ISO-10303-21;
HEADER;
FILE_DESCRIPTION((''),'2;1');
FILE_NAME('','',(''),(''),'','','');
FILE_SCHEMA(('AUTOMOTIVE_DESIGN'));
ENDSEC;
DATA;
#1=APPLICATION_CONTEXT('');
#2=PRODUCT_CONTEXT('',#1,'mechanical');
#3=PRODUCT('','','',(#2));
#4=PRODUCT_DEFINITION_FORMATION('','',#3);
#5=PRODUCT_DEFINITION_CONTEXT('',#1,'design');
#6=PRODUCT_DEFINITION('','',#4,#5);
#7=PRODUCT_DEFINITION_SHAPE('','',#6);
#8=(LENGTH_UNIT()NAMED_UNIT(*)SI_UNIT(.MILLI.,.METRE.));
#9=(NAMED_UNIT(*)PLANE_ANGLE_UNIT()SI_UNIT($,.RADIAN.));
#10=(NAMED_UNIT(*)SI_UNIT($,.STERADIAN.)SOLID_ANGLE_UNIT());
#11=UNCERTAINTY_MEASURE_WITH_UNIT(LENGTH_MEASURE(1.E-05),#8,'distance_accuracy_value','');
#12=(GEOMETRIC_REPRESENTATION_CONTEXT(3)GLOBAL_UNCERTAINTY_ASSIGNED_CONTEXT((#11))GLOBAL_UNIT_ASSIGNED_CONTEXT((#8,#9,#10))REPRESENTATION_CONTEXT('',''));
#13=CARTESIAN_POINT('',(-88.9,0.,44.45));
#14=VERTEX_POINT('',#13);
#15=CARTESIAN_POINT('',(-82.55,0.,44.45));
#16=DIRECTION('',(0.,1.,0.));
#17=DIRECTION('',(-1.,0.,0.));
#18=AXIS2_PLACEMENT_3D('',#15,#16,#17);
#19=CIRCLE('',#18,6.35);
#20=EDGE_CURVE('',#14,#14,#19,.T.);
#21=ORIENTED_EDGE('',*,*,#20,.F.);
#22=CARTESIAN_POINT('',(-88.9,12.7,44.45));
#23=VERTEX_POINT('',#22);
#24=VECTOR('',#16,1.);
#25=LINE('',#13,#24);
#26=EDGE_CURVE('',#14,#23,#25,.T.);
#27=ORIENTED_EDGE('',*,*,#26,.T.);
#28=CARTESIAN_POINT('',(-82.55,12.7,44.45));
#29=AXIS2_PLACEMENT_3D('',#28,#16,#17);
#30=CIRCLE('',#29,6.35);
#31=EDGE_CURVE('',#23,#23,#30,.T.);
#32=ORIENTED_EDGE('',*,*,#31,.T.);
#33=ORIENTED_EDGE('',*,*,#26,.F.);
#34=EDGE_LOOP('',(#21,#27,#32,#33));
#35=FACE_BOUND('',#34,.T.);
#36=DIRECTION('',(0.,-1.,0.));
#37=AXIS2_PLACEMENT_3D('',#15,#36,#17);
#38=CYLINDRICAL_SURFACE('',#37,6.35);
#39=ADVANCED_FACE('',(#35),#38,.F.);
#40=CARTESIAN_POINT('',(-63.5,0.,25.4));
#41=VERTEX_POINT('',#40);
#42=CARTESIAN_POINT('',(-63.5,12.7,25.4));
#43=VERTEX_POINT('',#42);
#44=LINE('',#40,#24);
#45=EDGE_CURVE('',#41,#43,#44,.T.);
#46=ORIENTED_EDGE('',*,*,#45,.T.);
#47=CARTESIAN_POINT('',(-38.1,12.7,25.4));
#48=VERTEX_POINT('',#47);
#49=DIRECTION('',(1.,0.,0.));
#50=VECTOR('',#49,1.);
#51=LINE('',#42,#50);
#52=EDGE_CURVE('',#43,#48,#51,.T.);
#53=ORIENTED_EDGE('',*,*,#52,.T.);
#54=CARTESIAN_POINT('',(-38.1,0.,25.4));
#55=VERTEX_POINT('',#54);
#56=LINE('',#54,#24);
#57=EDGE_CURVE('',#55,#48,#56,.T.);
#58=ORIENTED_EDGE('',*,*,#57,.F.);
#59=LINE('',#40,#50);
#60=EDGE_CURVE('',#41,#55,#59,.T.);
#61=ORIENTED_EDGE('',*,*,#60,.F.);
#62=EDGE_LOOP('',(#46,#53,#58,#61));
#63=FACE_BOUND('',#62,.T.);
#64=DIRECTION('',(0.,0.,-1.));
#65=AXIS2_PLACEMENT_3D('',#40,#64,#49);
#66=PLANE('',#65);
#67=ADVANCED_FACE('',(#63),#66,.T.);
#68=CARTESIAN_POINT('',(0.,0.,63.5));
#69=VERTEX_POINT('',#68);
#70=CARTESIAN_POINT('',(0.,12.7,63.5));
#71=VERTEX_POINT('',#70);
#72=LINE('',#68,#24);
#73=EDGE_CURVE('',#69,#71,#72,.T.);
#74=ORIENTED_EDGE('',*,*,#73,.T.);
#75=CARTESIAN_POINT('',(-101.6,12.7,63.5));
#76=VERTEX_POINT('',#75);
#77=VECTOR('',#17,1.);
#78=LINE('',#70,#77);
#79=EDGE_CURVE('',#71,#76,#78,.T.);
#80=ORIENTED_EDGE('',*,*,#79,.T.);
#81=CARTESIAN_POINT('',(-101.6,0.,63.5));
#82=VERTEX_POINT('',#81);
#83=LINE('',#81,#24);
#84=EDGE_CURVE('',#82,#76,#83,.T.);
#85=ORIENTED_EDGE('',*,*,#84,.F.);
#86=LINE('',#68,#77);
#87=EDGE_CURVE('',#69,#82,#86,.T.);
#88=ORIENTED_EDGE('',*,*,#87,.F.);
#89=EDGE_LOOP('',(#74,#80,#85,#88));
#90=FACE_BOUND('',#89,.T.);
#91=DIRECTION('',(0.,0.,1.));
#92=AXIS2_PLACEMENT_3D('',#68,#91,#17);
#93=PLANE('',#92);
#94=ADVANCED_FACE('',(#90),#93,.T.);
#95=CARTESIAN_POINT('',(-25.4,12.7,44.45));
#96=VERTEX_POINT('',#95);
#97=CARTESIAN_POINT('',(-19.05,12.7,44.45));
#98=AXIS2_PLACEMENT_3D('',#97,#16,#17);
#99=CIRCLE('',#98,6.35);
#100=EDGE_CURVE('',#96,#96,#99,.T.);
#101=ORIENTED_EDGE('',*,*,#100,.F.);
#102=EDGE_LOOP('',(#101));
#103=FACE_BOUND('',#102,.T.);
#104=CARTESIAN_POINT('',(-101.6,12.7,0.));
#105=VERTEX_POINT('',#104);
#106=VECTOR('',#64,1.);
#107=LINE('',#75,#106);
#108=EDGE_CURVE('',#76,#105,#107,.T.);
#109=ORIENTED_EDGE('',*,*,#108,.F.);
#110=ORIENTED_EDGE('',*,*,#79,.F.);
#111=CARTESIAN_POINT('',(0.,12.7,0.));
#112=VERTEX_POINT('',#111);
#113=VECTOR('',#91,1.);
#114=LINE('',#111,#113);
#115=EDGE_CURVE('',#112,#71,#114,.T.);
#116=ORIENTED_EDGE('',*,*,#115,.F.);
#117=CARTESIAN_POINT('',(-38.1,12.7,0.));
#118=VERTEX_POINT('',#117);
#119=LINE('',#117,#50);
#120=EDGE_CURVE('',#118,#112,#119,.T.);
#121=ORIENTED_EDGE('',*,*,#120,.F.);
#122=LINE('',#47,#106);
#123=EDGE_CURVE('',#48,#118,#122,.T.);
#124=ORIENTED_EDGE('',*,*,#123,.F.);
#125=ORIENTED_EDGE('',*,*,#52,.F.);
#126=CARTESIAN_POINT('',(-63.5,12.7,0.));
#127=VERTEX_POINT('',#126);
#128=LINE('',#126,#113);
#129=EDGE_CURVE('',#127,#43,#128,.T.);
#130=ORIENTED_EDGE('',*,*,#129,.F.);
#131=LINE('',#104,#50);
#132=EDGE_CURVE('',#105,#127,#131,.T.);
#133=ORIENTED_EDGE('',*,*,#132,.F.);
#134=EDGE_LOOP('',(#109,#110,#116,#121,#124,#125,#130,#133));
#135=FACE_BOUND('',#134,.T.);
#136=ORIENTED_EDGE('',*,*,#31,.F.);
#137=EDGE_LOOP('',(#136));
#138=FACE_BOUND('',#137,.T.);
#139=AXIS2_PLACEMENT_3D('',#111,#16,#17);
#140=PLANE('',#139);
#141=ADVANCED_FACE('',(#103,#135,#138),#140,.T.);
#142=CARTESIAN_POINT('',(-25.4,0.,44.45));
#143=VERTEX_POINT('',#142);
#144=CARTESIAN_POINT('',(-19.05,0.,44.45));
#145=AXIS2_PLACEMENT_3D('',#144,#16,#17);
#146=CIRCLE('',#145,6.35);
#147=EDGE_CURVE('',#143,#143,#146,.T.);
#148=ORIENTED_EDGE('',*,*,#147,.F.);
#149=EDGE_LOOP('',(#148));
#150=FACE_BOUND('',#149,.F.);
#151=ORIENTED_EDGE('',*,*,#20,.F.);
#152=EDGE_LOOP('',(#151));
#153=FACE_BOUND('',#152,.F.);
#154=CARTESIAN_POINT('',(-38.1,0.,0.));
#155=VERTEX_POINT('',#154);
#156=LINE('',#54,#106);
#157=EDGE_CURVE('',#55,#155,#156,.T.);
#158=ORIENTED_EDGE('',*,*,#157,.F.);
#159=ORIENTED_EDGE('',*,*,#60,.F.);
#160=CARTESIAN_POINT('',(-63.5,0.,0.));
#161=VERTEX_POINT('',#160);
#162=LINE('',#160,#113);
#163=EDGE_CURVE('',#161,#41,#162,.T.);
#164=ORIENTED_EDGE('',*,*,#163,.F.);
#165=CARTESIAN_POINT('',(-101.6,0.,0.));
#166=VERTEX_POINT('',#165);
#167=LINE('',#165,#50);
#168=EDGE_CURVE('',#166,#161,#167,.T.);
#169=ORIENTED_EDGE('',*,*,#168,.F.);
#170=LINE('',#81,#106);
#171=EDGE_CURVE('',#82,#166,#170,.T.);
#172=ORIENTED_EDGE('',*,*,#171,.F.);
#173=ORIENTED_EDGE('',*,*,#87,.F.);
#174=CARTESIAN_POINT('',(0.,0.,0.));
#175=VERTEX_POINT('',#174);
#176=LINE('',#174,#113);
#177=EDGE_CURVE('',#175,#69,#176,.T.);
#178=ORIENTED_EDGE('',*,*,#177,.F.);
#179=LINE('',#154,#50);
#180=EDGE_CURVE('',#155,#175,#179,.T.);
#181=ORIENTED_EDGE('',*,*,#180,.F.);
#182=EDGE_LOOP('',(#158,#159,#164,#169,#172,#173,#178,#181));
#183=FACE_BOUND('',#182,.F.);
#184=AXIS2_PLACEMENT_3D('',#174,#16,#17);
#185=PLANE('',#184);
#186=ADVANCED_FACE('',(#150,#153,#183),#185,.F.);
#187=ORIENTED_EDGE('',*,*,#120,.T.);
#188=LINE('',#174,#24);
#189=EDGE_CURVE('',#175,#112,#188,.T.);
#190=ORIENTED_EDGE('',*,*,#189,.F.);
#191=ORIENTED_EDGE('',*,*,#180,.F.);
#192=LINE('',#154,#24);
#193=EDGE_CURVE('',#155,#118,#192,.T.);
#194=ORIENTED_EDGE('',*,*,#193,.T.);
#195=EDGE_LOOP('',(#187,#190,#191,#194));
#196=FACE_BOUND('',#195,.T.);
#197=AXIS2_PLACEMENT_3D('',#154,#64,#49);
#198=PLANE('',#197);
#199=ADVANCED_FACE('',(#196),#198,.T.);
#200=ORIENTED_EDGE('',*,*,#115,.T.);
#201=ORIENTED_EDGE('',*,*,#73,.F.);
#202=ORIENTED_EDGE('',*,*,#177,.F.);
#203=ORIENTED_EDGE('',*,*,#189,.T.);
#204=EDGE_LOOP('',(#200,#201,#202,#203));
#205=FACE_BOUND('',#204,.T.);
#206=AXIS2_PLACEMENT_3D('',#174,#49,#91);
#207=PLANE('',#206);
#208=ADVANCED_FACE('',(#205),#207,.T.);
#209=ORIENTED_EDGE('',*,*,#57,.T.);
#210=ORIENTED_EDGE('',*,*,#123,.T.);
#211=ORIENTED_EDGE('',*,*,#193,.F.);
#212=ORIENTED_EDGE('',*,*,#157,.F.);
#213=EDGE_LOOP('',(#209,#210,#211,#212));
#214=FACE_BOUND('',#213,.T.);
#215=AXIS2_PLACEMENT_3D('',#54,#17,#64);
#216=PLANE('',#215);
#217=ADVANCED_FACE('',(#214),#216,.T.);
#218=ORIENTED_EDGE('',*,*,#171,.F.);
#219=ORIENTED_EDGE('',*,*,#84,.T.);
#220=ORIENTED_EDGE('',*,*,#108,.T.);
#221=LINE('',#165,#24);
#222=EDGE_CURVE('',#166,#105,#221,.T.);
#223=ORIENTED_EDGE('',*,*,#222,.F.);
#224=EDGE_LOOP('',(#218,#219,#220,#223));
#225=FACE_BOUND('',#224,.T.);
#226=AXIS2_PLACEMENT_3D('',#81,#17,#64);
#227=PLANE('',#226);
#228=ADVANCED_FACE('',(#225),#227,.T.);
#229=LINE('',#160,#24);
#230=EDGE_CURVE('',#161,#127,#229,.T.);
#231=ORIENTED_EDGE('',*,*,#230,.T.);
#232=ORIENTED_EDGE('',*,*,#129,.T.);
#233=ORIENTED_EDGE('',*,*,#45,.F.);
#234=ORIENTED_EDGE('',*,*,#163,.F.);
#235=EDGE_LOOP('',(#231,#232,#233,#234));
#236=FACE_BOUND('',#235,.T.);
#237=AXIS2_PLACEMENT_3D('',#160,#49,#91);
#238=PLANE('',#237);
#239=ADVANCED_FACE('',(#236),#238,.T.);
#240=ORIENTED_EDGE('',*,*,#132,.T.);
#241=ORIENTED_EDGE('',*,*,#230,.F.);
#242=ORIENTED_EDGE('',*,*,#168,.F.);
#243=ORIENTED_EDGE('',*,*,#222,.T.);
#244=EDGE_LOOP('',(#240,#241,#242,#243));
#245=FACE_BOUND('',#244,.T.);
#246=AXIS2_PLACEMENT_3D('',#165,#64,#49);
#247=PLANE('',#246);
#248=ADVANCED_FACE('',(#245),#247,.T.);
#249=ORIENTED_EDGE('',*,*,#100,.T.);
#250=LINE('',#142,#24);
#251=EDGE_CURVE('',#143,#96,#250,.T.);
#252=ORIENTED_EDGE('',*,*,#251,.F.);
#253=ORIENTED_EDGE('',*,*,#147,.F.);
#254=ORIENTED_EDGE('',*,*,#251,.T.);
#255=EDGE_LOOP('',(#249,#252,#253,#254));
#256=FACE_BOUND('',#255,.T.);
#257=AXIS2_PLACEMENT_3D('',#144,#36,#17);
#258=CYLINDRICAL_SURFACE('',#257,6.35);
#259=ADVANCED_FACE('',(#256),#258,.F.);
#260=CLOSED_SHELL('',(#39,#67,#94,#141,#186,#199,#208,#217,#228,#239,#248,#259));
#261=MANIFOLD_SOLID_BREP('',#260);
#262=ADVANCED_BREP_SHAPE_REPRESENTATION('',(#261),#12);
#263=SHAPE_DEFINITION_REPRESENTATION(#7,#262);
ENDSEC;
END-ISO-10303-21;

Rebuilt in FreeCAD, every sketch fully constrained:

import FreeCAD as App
import Part
import Sketcher
Q = App.Units.Quantity

doc = App.newDocument("Part")
params = doc.addObject("Spreadsheet::Sheet", "Params")
for row, (alias, value) in enumerate([
    ("sketch1_diameter", "0.5 in"),
    ("sketch1_width", "1 in"),
    ("sketch1_width2", "4 in"),
    ("sketch1_height", "2.5 in"),
    ("pad1_length", "0.5 in"),
], start=1):
    params.set(f"A{row}", alias)
    params.set(f"B{row}", "=" + value)
    params.setAlias(f"B{row}", alias)

body = doc.addObject("PartDesign::Body", "Body")

# Sketch on XZ plane
sketch1 = doc.addObject("Sketcher::SketchObject", "Sketch")
body.addObject(sketch1)
sketch1.AttachmentSupport = (doc.XZ_Plane, [""])
sketch1.MapMode = "FlatFace"
sketch1.addGeometry(Part.LineSegment(App.Vector(0, 63.5, 0), App.Vector(0, 0, 0)), False)
sketch1.addGeometry(Part.LineSegment(App.Vector(0, 0, 0), App.Vector(-38.1, 0, 0)), False)
sketch1.addGeometry(Part.LineSegment(App.Vector(-38.1, 0, 0), App.Vector(-38.1, 25.4, 0)), False)
sketch1.addGeometry(Part.LineSegment(App.Vector(-38.1, 25.4, 0), App.Vector(-63.5, 25.4, 0)), False)
sketch1.addGeometry(Part.LineSegment(App.Vector(-63.5, 25.4, 0), App.Vector(-63.5, 0, 0)), False)
sketch1.addGeometry(Part.LineSegment(App.Vector(-63.5, 0, 0), App.Vector(-101.6, 0, 0)), False)
sketch1.addGeometry(Part.LineSegment(App.Vector(-101.6, 0, 0), App.Vector(-101.6, 63.5, 0)), False)
sketch1.addGeometry(Part.LineSegment(App.Vector(-101.6, 63.5, 0), App.Vector(0, 63.5, 0)), False)
sketch1.addGeometry(Part.Circle(App.Vector(-19.05, 44.45, 0), App.Vector(0, 0, 1), 6.35), False)
sketch1.addGeometry(Part.Circle(App.Vector(-82.55, 44.45, 0), App.Vector(0, 0, 1), 6.35), False)
sketch1.addConstraint(Sketcher.Constraint("Coincident", 0, 2, 1, 1))
sketch1.addConstraint(Sketcher.Constraint("Coincident", 1, 2, 2, 1))
sketch1.addConstraint(Sketcher.Constraint("Coincident", 2, 2, 3, 1))
sketch1.addConstraint(Sketcher.Constraint("Coincident", 3, 2, 4, 1))
sketch1.addConstraint(Sketcher.Constraint("Coincident", 4, 2, 5, 1))
sketch1.addConstraint(Sketcher.Constraint("Coincident", 5, 2, 6, 1))
sketch1.addConstraint(Sketcher.Constraint("Coincident", 6, 2, 7, 1))
sketch1.addConstraint(Sketcher.Constraint("Coincident", 7, 2, 0, 1))
sketch1.addConstraint(Sketcher.Constraint("Vertical", 0))
sketch1.addConstraint(Sketcher.Constraint("Horizontal", 1))
sketch1.addConstraint(Sketcher.Constraint("Vertical", 2))
sketch1.addConstraint(Sketcher.Constraint("Horizontal", 3))
sketch1.addConstraint(Sketcher.Constraint("Vertical", 4))
sketch1.addConstraint(Sketcher.Constraint("Horizontal", 5))
sketch1.addConstraint(Sketcher.Constraint("Vertical", 6))
sketch1.addConstraint(Sketcher.Constraint("Horizontal", 7))
sketch1.addConstraint(Sketcher.Constraint("Coincident", 0, 2, -1, 1))
sketch1.addConstraint(Sketcher.Constraint("Equal", 8, 9))
sketch1.addConstraint(Sketcher.Constraint("PointOnObject", 4, 2, -1))
sketch1.addConstraint(Sketcher.Constraint("Horizontal", 8, 3, 9, 3))
sketch1.addConstraint(Sketcher.Constraint("Equal", 1, 5))
sketch1.addConstraint(Sketcher.Constraint("Equal", 3, 2))
sketch1.addConstraint(Sketcher.Constraint("Diameter", 8, Q("0.5 in")))
sketch1.addConstraint(Sketcher.Constraint("DistanceX", 3, 2, 3, 1, Q("1 in")))
sketch1.addConstraint(Sketcher.Constraint("DistanceX", 7, 1, 7, 2, Q("4 in")))
sketch1.addConstraint(Sketcher.Constraint("DistanceY", 0, 2, 0, 1, Q("2.5 in")))
sketch1.addConstraint(Sketcher.Constraint("DistanceX", 9, 3, 8, 3, Q("2.5 in")))
sketch1.addConstraint(Sketcher.Constraint("DistanceX", 8, 3, -1, 1, Q("0.75 in")))
sketch1.addConstraint(Sketcher.Constraint("DistanceY", -1, 1, 8, 3, Q("1.75 in")))
sketch1.setExpression("Constraints[22]", "Params.sketch1_diameter")
sketch1.setExpression("Constraints[23]", "Params.sketch1_width")
sketch1.setExpression("Constraints[24]", "Params.sketch1_width2")
sketch1.setExpression("Constraints[25]", "Params.sketch1_height")
pad1 = doc.addObject("PartDesign::Pad", "Pad")
body.addObject(pad1)
pad1.Profile = sketch1
pad1.setExpression("Length", "Params.pad1_length")
pad1.Reversed = True

doc.recompute()
